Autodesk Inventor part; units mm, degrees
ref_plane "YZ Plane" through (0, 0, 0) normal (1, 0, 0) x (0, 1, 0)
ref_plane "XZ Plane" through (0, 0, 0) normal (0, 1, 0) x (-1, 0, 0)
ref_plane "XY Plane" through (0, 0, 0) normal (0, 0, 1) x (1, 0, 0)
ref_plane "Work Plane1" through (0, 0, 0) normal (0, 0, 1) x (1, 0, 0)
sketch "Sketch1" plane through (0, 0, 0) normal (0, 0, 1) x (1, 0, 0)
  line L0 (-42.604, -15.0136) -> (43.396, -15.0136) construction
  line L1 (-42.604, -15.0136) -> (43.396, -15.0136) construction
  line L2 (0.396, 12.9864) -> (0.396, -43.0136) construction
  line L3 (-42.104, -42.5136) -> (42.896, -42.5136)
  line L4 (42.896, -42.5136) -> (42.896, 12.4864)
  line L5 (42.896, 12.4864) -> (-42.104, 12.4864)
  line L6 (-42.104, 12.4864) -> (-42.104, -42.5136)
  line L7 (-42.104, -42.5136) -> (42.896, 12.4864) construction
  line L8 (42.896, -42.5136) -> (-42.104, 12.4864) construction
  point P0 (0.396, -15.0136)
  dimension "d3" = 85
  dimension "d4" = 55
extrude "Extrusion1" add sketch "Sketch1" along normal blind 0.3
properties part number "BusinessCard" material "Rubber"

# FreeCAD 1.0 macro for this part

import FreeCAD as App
import Part
import Sketcher
from FreeCAD import Vector


def add_polygon(sketch, points):
    """Adds a closed chain of lines whose ends are joined by coincident constraints."""
    first, n = sketch.GeometryCount, len(points)
    for a, b in zip(points, points[1:] + points[:1]):
        sketch.addGeometry(Part.LineSegment(App.Vector(*a, 0), App.Vector(*b, 0)), False)
    for i in range(n):
        sketch.addConstraint(Sketcher.Constraint("Coincident", first + i, 2, first + (i + 1) % n, 1))

doc = App.newDocument("Part")
body = doc.addObject("PartDesign::Body", "Body")

sketch1 = doc.addObject("Sketcher::SketchObject", "Sketch")
body.addObject(sketch1)
sketch1.AttachmentSupport = (doc.XY_Plane, [""])
sketch1.MapMode = "FlatFace"
add_polygon(sketch1, [(-42, 12), (-42, -43), (43, -43), (43, 12)])
sketch1.addConstraint([
    Sketcher.Constraint("Vertical", 0),
    Sketcher.Constraint("Horizontal", 1),
    Sketcher.Constraint("Vertical", 2),
    Sketcher.Constraint("Horizontal", 3),
    Sketcher.Constraint("DistanceX", 1, 1, 1, 2, 85.0),
    Sketcher.Constraint("DistanceY", 0, 2, 0, 1, 55.0),
    Sketcher.Constraint("DistanceX", 0, 2, -1, 1, 42.104),
    Sketcher.Constraint("DistanceY", 0, 2, -1, 1, 42.5136),
])
pad1 = doc.addObject("PartDesign::Pad", "Pad")
body.addObject(pad1)
pad1.Profile = sketch1
pad1.Length = 0.3

doc.recompute()
